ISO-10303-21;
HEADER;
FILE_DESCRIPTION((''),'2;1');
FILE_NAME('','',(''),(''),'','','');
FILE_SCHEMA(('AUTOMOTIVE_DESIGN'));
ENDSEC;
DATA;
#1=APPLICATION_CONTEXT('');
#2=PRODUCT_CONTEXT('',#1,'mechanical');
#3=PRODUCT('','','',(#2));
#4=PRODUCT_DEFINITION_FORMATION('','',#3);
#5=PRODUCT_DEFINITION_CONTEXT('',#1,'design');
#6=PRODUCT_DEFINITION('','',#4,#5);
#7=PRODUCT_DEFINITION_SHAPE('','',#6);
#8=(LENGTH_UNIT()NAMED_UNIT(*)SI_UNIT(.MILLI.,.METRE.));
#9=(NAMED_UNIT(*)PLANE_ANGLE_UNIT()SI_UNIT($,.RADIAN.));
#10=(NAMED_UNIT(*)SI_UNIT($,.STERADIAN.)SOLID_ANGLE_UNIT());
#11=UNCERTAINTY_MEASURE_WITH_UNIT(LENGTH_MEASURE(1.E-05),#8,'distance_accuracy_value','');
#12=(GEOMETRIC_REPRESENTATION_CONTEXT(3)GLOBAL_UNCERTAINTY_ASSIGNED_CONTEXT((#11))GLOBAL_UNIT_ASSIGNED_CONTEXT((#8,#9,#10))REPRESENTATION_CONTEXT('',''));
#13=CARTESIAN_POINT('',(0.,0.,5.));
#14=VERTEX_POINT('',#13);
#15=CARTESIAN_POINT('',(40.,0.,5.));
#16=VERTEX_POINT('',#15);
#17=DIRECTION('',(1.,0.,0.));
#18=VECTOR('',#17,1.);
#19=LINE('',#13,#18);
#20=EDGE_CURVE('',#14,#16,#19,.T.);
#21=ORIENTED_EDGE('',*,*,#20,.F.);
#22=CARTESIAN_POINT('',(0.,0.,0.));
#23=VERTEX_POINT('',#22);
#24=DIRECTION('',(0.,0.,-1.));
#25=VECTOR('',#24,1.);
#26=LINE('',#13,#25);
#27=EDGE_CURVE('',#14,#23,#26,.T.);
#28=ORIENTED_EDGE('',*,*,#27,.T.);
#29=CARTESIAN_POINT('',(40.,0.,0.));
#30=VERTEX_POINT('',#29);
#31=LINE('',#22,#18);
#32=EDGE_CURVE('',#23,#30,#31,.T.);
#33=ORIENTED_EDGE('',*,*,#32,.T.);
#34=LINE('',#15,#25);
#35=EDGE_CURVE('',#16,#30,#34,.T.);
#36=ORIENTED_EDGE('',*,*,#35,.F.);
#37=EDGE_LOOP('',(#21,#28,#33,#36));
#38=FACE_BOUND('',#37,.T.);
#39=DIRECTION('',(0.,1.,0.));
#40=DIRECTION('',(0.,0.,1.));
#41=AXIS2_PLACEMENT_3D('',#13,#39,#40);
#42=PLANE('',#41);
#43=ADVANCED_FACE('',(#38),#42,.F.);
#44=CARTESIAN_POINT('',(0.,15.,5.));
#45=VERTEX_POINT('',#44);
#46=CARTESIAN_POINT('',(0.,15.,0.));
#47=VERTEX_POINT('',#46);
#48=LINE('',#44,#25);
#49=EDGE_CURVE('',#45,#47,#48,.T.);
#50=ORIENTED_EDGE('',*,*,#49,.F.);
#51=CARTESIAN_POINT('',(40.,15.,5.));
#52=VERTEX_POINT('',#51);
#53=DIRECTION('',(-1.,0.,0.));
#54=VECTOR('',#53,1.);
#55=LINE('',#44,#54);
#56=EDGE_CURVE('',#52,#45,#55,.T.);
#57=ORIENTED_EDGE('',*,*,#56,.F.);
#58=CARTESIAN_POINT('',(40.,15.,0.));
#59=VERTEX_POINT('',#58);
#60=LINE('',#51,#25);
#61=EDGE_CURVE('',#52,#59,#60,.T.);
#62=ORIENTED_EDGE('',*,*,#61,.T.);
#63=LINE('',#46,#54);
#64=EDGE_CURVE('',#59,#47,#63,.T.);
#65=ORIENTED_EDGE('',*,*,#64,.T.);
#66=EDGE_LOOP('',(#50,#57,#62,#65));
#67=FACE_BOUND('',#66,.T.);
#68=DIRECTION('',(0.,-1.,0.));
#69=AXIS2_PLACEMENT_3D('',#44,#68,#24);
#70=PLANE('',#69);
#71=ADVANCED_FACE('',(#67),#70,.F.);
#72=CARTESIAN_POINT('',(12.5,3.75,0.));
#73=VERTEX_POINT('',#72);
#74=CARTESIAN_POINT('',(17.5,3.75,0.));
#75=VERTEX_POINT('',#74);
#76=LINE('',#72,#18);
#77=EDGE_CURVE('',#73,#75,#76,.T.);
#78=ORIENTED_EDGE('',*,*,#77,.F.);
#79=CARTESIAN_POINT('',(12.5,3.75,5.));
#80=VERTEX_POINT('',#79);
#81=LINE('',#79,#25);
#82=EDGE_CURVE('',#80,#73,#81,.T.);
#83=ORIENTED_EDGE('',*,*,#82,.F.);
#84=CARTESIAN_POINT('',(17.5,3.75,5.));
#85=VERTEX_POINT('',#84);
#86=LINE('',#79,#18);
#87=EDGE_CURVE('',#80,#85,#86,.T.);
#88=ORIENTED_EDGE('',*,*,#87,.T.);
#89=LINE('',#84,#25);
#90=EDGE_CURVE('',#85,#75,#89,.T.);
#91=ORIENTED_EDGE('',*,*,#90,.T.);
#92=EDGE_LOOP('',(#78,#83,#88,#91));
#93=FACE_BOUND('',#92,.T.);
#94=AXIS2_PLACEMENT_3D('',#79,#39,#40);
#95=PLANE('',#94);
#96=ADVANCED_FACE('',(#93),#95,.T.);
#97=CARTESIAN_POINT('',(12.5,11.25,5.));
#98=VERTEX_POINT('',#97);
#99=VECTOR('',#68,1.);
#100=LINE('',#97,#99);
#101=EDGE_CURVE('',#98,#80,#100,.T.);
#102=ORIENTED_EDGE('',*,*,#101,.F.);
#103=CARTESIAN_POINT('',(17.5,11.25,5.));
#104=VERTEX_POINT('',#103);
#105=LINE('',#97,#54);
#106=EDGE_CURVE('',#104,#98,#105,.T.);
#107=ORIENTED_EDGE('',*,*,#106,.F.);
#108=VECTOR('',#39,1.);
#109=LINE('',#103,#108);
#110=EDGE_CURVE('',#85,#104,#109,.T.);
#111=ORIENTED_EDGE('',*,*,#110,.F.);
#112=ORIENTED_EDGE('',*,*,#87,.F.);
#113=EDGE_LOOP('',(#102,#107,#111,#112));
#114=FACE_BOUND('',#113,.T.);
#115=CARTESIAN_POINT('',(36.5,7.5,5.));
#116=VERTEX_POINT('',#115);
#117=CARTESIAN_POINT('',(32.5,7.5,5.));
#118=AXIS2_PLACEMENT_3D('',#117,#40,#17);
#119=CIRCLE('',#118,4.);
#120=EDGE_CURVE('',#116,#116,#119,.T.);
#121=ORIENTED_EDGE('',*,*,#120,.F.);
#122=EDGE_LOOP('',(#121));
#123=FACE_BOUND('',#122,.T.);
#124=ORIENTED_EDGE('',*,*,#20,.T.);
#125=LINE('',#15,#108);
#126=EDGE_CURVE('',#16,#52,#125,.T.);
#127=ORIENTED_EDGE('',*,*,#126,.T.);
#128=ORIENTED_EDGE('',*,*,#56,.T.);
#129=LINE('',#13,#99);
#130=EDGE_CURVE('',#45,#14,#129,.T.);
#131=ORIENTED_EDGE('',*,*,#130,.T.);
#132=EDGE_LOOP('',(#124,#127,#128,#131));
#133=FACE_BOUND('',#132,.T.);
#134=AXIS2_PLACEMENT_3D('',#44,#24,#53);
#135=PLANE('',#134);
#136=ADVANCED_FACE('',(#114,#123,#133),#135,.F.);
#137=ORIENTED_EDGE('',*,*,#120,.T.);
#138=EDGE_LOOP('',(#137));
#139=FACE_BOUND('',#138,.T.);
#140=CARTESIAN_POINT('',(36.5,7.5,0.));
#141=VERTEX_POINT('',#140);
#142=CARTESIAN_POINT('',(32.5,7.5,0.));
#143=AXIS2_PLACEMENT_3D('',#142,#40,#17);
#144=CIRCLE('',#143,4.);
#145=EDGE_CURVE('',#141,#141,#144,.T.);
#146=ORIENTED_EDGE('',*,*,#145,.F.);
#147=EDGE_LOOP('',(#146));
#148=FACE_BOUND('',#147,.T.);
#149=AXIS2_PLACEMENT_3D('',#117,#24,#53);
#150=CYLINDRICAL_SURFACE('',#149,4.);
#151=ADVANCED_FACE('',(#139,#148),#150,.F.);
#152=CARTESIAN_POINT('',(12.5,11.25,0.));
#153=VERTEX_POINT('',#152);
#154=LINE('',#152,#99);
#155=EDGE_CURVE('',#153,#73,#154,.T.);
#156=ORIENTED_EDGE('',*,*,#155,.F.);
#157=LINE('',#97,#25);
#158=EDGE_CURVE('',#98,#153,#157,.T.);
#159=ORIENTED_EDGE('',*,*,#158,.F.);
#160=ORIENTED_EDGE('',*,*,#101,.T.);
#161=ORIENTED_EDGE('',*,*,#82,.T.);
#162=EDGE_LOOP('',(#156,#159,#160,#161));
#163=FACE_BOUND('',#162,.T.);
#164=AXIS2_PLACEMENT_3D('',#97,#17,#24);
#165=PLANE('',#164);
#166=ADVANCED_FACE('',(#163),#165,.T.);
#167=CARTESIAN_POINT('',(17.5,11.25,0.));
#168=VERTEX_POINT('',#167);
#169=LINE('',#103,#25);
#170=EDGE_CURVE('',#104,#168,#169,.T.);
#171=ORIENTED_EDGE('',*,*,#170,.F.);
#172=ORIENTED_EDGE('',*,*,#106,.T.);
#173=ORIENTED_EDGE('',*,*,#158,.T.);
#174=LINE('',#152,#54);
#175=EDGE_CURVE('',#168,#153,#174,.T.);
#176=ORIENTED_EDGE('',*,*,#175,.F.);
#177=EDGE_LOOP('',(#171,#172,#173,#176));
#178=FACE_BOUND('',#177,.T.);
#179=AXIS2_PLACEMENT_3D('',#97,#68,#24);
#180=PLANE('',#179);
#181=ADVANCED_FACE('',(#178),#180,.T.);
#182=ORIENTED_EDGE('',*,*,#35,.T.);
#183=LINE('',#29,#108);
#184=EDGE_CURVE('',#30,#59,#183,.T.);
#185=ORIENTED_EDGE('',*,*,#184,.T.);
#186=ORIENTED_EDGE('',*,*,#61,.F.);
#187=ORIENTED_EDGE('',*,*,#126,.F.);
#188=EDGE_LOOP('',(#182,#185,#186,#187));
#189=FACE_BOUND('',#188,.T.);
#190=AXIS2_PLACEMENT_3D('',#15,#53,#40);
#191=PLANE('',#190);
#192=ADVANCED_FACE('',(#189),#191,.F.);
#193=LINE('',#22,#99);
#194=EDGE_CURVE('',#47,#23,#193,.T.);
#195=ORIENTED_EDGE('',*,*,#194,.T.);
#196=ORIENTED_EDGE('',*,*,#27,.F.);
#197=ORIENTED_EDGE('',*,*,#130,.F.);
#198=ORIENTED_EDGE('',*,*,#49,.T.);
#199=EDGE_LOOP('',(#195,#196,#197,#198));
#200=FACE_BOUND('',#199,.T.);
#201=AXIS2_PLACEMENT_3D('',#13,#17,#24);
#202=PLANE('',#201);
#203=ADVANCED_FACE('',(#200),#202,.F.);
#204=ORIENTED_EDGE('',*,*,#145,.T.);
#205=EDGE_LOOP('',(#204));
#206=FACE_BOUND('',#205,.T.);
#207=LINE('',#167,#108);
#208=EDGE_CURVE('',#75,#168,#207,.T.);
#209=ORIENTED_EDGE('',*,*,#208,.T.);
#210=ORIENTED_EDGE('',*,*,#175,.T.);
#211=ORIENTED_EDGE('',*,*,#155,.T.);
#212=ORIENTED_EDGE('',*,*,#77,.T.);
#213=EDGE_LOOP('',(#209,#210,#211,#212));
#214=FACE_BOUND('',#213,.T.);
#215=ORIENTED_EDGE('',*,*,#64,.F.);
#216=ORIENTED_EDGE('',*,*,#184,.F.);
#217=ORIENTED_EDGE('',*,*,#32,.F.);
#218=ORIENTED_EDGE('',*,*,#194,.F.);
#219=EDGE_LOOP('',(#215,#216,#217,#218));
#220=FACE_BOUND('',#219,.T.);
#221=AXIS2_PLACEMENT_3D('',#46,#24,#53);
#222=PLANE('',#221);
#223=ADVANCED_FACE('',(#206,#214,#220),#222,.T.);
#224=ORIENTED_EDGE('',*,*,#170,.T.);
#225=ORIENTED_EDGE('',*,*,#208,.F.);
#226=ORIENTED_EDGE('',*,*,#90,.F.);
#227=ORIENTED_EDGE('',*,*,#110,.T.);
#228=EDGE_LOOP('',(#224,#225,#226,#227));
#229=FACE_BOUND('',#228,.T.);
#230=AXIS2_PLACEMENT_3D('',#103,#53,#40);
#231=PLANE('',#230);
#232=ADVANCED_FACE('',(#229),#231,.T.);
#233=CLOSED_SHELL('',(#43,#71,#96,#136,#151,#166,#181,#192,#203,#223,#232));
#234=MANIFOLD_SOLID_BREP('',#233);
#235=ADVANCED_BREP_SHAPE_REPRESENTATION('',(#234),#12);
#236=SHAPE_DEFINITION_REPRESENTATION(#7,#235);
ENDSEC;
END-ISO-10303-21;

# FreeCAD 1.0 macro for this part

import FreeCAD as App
import Part
import Sketcher
from FreeCAD import Vector

doc = App.newDocument("Part")
body = doc.addObject("PartDesign::Body", "Body")

sketch1 = doc.addObject("Sketcher::SketchObject", "Sketch")
body.addObject(sketch1)
sketch1.AttachmentSupport = (doc.XY_Plane, [""])
sketch1.MapMode = "FlatFace"
sketch1.addGeometry([
    Part.LineSegment(Vector(0, 15, 0), Vector(0, 0, 0)),
    Part.LineSegment(Vector(0, 0, 0), Vector(40, 0, 0)),
    Part.LineSegment(Vector(40, 0, 0), Vector(40, 15, 0)),
    Part.LineSegment(Vector(40, 15, 0), Vector(0, 15, 0)),
    Part.LineSegment(Vector(17.5, 3.8, 0), Vector(12.5, 3.8, 0)),
    Part.LineSegment(Vector(12.5, 3.8, 0), Vector(12.5, 11.2, 0)),
    Part.LineSegment(Vector(12.5, 11.2, 0), Vector(17.5, 11.2, 0)),
    Part.LineSegment(Vector(17.5, 11.2, 0), Vector(17.5, 3.8, 0)),
    Part.Circle(Vector(32.5, 7.5, 0), Vector(0, 0, 1), 4),
], False)
sketch1.addConstraint([
    Sketcher.Constraint("Coincident", 0, 2, 1, 1),
    Sketcher.Constraint("Coincident", 1, 2, 2, 1),
    Sketcher.Constraint("Coincident", 2, 2, 3, 1),
    Sketcher.Constraint("Coincident", 3, 2, 0, 1),
    Sketcher.Constraint("Coincident", 4, 2, 5, 1),
    Sketcher.Constraint("Coincident", 5, 2, 6, 1),
    Sketcher.Constraint("Coincident", 6, 2, 7, 1),
    Sketcher.Constraint("Coincident", 7, 2, 4, 1),
    Sketcher.Constraint("Vertical", 0),
    Sketcher.Constraint("Horizontal", 1),
    Sketcher.Constraint("Vertical", 2),
    Sketcher.Constraint("Horizontal", 3),
    Sketcher.Constraint("Horizontal", 4),
    Sketcher.Constraint("Vertical", 5),
    Sketcher.Constraint("Horizontal", 6),
    Sketcher.Constraint("Vertical", 7),
    Sketcher.Constraint("Coincident", 0, 2, -1, 1),
    Sketcher.Constraint("Diameter", 8, 8.0),
    Sketcher.Constraint("DistanceX", 1, 1, 1, 2, 40.0),
    Sketcher.Constraint("DistanceX", 4, 2, 4, 1, 5.0),
    Sketcher.Constraint("DistanceY", 0, 2, 0, 1, 15.0),
    Sketcher.Constraint("DistanceY", 5, 1, 5, 2, 7.5),
    Sketcher.Constraint("DistanceX", 4, 2, 8, 3, 20.0),
    Sketcher.Constraint("DistanceX", -1, 1, 8, 3, 32.5),
    Sketcher.Constraint("DistanceY", -1, 1, 8, 3, 7.5),
    Sketcher.Constraint("DistanceY", -1, 1, 4, 2, 3.75),
])
pad1 = doc.addObject("PartDesign::Pad", "Pad")
body.addObject(pad1)
pad1.Profile = sketch1
pad1.Length = 5

doc.recompute()
